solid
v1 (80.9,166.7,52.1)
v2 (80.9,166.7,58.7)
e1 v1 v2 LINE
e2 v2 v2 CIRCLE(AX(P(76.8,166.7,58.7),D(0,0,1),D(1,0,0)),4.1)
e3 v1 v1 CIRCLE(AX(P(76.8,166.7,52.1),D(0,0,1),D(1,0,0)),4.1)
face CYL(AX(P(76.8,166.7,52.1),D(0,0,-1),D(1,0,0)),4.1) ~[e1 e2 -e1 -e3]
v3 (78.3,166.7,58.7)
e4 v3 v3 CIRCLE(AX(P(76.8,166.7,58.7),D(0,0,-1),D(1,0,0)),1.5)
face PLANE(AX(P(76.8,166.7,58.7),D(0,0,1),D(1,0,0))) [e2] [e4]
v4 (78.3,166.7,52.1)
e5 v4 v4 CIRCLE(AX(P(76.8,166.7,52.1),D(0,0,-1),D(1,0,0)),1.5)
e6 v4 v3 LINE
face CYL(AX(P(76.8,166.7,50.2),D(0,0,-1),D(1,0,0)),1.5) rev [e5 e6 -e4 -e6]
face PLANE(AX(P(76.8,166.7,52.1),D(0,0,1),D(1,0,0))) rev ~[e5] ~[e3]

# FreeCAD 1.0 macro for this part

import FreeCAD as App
import Part
import Sketcher

V = App.Vector

doc = App.newDocument("Part")
body = doc.addObject("PartDesign::Body", "Body")

sketch1 = body.newObject("Sketcher::SketchObject", "Sketch")
sketch1.AttachmentSupport = (doc.getObject("XY_Plane"), [""])
sketch1.MapMode = "FlatFace"
sketch1.AttachmentOffset = App.Placement(V(0, 0, -1.9), App.Rotation())
sketch1.addGeometry(Part.Circle(V(0, 0, 0), V(0, 0, 1), 1.5), False)
sketch1.addConstraint([
    Sketcher.Constraint("Coincident", 0, 3, -1, 1),
    Sketcher.Constraint("Diameter", 0, 3.0),
])
pad1 = body.newObject("PartDesign::Pad", "Pad")
pad1.Profile = sketch1
pad1.Length = 10
body2 = doc.addObject("PartDesign::Body", "Body001")

sketch2 = body2.newObject("Sketcher::SketchObject", "Sketch001")
sketch2.AttachmentSupport = (doc.getObject("XY_Plane001"), [""])
sketch2.MapMode = "FlatFace"
sketch2.addGeometry(Part.Circle(V(0, 0, 0), V(0, 0, 1), 4.1), False)
sketch2.addConstraint([
    Sketcher.Constraint("Coincident", 0, 3, -1, 1),
    Sketcher.Constraint("Diameter", 0, 8.2),
])
pad2 = body2.newObject("PartDesign::Pad", "Pad001")
pad2.Profile = sketch2
pad2.Length = 6.6
doc.recompute()

boolean = body2.newObject("PartDesign::Boolean", "Boolean")
boolean.Type = "Cut"
boolean.addObjects([body])
body3 = doc.addObject("PartDesign::Body", "Body002")
doc.recompute()

body2.Placement = App.Placement(V(76.8, 166.7, 52.1), App.Rotation(V(0, 0, 1), 0))
boolean2 = body3.newObject("PartDesign::Boolean", "Boolean001")
boolean2.Type = "Fuse"
boolean2.addObjects([body2])

doc.recompute()
